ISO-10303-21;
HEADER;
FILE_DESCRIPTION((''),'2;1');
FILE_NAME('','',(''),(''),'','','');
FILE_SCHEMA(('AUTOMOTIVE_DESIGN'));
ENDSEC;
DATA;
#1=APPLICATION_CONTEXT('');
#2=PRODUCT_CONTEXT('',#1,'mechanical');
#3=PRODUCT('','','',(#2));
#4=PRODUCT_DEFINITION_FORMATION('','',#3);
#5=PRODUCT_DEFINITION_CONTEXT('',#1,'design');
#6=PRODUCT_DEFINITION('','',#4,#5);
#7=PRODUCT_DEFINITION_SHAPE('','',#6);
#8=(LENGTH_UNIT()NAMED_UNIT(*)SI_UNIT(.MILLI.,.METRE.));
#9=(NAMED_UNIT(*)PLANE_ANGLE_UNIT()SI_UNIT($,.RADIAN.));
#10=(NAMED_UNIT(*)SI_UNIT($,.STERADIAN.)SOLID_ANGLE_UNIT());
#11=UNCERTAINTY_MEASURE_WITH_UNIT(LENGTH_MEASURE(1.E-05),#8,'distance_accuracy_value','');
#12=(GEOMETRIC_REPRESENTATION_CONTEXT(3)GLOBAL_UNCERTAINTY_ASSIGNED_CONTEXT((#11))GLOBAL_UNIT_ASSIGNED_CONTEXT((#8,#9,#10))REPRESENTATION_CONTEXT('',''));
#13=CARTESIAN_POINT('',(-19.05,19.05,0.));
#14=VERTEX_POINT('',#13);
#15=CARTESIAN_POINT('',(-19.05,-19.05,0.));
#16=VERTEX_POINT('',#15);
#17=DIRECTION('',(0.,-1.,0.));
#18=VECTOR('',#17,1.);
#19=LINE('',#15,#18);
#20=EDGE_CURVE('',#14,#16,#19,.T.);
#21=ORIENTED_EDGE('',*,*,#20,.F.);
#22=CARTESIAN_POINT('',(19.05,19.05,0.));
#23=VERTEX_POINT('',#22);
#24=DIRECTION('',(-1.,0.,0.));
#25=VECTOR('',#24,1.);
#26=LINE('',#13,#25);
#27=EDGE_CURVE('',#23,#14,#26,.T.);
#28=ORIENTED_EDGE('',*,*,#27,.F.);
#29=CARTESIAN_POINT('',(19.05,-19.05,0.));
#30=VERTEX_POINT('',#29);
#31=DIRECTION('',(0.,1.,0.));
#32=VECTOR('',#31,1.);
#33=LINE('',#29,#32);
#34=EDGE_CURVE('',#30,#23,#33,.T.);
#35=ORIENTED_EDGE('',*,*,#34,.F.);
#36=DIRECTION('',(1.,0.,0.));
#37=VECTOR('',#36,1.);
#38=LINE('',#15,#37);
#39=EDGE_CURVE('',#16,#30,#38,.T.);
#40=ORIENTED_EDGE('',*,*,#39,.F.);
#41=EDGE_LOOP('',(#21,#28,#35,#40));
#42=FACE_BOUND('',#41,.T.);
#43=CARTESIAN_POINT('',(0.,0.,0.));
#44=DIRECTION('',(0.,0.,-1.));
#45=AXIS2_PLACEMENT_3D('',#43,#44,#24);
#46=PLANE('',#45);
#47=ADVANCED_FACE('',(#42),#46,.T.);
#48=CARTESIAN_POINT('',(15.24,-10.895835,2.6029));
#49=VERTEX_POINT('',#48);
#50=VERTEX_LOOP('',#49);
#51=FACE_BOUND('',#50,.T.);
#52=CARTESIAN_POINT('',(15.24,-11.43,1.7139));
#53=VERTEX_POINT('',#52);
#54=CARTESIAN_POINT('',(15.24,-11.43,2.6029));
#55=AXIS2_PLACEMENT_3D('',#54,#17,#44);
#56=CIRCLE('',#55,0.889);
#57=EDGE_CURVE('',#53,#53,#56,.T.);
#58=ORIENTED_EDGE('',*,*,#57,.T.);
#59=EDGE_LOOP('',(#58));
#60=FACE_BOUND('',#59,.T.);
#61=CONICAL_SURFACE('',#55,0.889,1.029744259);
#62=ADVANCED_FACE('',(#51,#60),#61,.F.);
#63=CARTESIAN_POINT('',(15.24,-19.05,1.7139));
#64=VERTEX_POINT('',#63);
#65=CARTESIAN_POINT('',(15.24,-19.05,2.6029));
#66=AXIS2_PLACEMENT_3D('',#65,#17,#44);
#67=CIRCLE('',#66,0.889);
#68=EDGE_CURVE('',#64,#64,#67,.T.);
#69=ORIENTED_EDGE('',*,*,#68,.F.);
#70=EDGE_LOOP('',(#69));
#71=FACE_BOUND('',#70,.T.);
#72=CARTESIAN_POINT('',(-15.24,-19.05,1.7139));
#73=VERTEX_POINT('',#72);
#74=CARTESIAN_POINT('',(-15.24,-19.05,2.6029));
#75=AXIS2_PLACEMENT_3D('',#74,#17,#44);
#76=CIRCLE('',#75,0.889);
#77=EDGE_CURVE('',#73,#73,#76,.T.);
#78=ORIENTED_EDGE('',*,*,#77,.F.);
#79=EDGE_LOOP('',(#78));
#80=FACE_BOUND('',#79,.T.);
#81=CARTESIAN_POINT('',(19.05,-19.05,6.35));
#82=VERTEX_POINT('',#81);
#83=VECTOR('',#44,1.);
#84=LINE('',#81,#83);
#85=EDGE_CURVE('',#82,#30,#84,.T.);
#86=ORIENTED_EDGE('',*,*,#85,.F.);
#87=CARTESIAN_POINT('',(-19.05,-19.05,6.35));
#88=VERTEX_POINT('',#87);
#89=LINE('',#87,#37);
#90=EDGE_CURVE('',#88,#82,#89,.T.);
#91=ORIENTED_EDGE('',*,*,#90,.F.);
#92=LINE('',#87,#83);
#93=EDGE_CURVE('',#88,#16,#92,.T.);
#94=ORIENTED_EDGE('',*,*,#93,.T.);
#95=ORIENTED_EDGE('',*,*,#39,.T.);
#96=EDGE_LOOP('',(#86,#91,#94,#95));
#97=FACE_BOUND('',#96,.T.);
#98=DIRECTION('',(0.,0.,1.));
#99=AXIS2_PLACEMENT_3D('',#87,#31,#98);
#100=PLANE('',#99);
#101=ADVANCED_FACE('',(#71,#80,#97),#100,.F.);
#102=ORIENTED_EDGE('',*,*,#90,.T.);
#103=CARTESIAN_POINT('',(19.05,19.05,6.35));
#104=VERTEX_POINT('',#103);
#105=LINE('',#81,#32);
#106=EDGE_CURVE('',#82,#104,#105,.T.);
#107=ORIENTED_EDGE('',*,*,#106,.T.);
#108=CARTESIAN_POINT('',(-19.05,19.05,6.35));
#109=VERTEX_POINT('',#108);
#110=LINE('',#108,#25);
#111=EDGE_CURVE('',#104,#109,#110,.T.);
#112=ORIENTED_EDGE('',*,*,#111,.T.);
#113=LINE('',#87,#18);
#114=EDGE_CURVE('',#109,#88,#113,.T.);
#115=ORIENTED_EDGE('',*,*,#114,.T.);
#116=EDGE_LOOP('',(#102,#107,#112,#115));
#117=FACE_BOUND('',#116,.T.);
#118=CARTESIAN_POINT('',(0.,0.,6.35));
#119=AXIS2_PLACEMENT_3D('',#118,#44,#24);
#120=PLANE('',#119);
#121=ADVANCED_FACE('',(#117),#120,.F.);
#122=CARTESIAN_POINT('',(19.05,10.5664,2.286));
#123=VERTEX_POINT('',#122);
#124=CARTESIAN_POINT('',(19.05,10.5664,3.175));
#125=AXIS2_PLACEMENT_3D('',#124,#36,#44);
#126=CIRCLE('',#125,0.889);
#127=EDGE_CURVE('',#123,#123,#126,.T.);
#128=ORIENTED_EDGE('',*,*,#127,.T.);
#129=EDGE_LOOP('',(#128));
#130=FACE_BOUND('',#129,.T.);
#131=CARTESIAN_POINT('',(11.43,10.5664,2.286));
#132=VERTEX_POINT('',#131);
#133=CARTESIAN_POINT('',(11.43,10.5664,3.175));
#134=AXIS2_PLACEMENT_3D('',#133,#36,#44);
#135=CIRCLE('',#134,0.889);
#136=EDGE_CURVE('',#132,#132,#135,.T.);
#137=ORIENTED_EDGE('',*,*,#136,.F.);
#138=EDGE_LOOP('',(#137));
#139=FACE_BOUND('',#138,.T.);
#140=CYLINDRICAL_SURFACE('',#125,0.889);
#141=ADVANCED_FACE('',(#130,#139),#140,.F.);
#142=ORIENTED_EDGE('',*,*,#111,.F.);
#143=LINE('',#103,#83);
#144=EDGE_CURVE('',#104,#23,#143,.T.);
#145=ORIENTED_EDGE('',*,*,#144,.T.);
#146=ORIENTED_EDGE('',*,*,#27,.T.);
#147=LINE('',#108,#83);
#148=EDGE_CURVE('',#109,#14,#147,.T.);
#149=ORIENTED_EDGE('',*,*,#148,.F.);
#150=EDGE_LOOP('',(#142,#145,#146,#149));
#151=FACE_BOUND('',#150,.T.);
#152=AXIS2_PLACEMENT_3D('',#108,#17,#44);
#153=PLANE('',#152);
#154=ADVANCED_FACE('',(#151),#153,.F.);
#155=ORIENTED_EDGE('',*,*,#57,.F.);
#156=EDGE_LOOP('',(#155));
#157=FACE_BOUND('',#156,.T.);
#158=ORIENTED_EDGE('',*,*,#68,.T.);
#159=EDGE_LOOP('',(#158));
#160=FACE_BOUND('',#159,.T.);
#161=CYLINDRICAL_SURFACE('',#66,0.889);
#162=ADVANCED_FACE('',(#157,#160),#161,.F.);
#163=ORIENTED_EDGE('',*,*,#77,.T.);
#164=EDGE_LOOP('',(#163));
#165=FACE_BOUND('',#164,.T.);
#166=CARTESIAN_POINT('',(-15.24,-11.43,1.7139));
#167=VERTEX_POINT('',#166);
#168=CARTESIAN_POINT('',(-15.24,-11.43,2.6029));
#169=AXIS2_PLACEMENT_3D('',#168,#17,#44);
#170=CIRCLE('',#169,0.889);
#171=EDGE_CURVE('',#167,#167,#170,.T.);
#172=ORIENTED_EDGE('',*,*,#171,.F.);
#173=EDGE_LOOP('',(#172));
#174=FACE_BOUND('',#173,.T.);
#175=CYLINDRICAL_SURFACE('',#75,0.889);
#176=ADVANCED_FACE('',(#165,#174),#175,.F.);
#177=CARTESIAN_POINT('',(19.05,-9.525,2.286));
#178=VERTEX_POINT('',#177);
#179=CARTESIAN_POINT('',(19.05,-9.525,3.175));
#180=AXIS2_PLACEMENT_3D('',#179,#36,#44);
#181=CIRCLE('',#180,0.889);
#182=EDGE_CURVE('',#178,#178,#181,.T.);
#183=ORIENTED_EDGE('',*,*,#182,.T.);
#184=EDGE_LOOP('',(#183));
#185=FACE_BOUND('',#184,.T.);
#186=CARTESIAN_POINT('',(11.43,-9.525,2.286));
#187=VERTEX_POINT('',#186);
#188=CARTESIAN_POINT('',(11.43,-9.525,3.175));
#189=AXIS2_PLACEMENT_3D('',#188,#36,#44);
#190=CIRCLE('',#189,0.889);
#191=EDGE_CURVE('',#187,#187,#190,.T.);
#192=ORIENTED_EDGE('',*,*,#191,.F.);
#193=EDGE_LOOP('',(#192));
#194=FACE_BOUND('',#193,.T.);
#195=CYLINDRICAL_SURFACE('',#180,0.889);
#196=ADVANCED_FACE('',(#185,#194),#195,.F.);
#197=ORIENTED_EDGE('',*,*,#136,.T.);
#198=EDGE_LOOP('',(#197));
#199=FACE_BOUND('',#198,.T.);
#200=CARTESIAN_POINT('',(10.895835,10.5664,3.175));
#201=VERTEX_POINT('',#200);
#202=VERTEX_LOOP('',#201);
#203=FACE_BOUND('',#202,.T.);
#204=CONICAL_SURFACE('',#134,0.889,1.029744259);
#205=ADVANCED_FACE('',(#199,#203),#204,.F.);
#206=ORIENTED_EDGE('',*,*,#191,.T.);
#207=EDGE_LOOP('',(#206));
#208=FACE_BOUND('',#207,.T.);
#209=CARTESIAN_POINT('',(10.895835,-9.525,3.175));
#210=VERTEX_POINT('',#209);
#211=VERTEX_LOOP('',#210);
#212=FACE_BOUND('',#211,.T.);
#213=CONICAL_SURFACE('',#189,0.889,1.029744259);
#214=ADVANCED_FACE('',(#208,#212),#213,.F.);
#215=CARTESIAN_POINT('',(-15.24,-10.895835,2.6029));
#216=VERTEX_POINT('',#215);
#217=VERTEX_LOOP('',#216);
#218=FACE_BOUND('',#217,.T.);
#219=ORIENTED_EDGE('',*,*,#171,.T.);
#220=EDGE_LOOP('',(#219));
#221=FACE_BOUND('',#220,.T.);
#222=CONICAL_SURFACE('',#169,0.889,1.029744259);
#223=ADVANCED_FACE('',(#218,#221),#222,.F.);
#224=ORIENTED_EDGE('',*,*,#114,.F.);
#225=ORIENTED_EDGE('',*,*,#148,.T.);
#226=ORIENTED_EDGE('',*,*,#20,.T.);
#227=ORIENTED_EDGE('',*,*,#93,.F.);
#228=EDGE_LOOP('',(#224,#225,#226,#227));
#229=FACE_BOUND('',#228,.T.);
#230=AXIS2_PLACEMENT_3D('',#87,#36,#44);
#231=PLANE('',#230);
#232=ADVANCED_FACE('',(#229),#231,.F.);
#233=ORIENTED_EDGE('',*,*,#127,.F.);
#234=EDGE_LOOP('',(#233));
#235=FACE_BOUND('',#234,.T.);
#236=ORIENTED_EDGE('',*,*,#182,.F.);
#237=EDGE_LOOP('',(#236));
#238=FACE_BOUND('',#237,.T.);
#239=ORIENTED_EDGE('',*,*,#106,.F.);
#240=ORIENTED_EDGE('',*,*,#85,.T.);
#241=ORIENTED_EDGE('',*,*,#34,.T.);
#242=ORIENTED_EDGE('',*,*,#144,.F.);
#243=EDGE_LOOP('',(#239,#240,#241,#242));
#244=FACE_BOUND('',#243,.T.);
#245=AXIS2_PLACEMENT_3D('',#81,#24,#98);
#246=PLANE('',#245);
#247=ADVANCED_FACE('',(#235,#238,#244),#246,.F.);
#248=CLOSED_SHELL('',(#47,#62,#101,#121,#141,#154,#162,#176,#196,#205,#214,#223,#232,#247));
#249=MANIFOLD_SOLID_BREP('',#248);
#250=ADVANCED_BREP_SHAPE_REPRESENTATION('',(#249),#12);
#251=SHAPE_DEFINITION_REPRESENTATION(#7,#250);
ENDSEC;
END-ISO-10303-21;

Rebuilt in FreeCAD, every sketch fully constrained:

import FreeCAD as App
import Part
import Sketcher
Q = App.Units.Quantity


def add_polygon(sketch, points):
    """Adds a closed chain of lines whose ends are joined by coincident constraints."""
    first, n = sketch.GeometryCount, len(points)
    for a, b in zip(points, points[1:] + points[:1]):
        sketch.addGeometry(Part.LineSegment(App.Vector(*a, 0), App.Vector(*b, 0)), False)
    for i in range(n):
        sketch.addConstraint(Sketcher.Constraint("Coincident", first + i, 2, first + (i + 1) % n, 1))

doc = App.newDocument("Part")
body = doc.addObject("PartDesign::Body", "Body")

sketch1 = doc.addObject("Sketcher::SketchObject", "Sketch")
body.addObject(sketch1)
sketch1.AttachmentSupport = (doc.XY_Plane, [""])
sketch1.MapMode = "FlatFace"
add_polygon(sketch1, [(-19, 19), (-19, -19), (19, -19), (19, 19)])
sketch1.addConstraint([
    Sketcher.Constraint("Vertical", 0),
    Sketcher.Constraint("Horizontal", 1),
    Sketcher.Constraint("Vertical", 2),
    Sketcher.Constraint("Horizontal", 3),
    Sketcher.Constraint("Symmetric", 0, 2, 2, 2, -1, 1),
    Sketcher.Constraint("Equal", 3, 0),
    Sketcher.Constraint("DistanceX", 1, 1, 1, 2, Q("1.5 in")),
])
pad1 = doc.addObject("PartDesign::Pad", "Pad")
body.addObject(pad1)
pad1.Profile = sketch1
pad1.Length = Q("0.25 in")

sketch2 = doc.addObject("Sketcher::SketchObject", "Sketch001")
body.addObject(sketch2)
sketch2.AttachmentSupport = (doc.XZ_Plane, [""])
sketch2.MapMode = "FlatFace"
sketch2.AttachmentOffset = App.Placement(App.Vector(0, 0, 0.75 * 25.4), App.Rotation())
sketch2.addGeometry([
    Part.Circle(App.Vector(15.2, 2.6, 0), App.Vector(0, 0, 1), 0.9),
    Part.Circle(App.Vector(-15.2, 2.6, 0), App.Vector(0, 0, 1), 0.9),
], False)
sketch2.addConstraint([
    Sketcher.Constraint("Equal", 0, 1),
    Sketcher.Constraint("Symmetric", 0, 3, 1, 3, -2),
    Sketcher.Constraint("Diameter", 0, Q("0.07 in")),
    Sketcher.Constraint("DistanceX", -1, 1, 0, 3, Q("0.6 in")),
    Sketcher.Constraint("DistanceY", -1, 1, 0, 3, 2.6029),
])
doc.recompute()
hole = doc.addObject("PartDesign::Hole", "Hole")
body.addObject(hole)
hole.Profile = sketch2
hole.ThreadType = "None"
hole.Diameter = Q("0.07 in")
hole.DepthType = "Dimension"
hole.Depth = Q("0.3 in")
hole.DrillPoint = "Angled"
hole.DrillPointAngle = 118

sketch3 = doc.addObject("Sketcher::SketchObject", "Sketch002")
body.addObject(sketch3)
sketch3.AttachmentSupport = (doc.YZ_Plane, [""])
sketch3.MapMode = "FlatFace"
sketch3.AttachmentOffset = App.Placement(App.Vector(0, 0, 0.75 * 25.4), App.Rotation())
sketch3.addGeometry([
    Part.Circle(App.Vector(10.6, 3.2, 0), App.Vector(0, 0, 1), 0.9),
    Part.Circle(App.Vector(-9.5, 3.2, 0), App.Vector(0, 0, 1), 0.9),
], False)
sketch3.addConstraint([
    Sketcher.Constraint("Equal", 0, 1),
    Sketcher.Constraint("Horizontal", 0, 3, 1, 3),
    Sketcher.Constraint("Diameter", 0, Q("0.07 in")),
    Sketcher.Constraint("DistanceX", -1, 1, 0, 3, Q("0.416 in")),
    Sketcher.Constraint("DistanceY", -1, 1, 0, 3, Q("0.125 in")),
    Sketcher.Constraint("DistanceX", 1, 3, -1, 1, Q("0.375 in")),
])
doc.recompute()
hole2 = doc.addObject("PartDesign::Hole", "Hole001")
body.addObject(hole2)
hole2.Profile = sketch3
hole2.ThreadType = "None"
hole2.Diameter = Q("0.07 in")
hole2.DepthType = "Dimension"
hole2.Depth = Q("0.3 in")
hole2.DrillPoint = "Angled"
hole2.DrillPointAngle = 118

doc.recompute()
